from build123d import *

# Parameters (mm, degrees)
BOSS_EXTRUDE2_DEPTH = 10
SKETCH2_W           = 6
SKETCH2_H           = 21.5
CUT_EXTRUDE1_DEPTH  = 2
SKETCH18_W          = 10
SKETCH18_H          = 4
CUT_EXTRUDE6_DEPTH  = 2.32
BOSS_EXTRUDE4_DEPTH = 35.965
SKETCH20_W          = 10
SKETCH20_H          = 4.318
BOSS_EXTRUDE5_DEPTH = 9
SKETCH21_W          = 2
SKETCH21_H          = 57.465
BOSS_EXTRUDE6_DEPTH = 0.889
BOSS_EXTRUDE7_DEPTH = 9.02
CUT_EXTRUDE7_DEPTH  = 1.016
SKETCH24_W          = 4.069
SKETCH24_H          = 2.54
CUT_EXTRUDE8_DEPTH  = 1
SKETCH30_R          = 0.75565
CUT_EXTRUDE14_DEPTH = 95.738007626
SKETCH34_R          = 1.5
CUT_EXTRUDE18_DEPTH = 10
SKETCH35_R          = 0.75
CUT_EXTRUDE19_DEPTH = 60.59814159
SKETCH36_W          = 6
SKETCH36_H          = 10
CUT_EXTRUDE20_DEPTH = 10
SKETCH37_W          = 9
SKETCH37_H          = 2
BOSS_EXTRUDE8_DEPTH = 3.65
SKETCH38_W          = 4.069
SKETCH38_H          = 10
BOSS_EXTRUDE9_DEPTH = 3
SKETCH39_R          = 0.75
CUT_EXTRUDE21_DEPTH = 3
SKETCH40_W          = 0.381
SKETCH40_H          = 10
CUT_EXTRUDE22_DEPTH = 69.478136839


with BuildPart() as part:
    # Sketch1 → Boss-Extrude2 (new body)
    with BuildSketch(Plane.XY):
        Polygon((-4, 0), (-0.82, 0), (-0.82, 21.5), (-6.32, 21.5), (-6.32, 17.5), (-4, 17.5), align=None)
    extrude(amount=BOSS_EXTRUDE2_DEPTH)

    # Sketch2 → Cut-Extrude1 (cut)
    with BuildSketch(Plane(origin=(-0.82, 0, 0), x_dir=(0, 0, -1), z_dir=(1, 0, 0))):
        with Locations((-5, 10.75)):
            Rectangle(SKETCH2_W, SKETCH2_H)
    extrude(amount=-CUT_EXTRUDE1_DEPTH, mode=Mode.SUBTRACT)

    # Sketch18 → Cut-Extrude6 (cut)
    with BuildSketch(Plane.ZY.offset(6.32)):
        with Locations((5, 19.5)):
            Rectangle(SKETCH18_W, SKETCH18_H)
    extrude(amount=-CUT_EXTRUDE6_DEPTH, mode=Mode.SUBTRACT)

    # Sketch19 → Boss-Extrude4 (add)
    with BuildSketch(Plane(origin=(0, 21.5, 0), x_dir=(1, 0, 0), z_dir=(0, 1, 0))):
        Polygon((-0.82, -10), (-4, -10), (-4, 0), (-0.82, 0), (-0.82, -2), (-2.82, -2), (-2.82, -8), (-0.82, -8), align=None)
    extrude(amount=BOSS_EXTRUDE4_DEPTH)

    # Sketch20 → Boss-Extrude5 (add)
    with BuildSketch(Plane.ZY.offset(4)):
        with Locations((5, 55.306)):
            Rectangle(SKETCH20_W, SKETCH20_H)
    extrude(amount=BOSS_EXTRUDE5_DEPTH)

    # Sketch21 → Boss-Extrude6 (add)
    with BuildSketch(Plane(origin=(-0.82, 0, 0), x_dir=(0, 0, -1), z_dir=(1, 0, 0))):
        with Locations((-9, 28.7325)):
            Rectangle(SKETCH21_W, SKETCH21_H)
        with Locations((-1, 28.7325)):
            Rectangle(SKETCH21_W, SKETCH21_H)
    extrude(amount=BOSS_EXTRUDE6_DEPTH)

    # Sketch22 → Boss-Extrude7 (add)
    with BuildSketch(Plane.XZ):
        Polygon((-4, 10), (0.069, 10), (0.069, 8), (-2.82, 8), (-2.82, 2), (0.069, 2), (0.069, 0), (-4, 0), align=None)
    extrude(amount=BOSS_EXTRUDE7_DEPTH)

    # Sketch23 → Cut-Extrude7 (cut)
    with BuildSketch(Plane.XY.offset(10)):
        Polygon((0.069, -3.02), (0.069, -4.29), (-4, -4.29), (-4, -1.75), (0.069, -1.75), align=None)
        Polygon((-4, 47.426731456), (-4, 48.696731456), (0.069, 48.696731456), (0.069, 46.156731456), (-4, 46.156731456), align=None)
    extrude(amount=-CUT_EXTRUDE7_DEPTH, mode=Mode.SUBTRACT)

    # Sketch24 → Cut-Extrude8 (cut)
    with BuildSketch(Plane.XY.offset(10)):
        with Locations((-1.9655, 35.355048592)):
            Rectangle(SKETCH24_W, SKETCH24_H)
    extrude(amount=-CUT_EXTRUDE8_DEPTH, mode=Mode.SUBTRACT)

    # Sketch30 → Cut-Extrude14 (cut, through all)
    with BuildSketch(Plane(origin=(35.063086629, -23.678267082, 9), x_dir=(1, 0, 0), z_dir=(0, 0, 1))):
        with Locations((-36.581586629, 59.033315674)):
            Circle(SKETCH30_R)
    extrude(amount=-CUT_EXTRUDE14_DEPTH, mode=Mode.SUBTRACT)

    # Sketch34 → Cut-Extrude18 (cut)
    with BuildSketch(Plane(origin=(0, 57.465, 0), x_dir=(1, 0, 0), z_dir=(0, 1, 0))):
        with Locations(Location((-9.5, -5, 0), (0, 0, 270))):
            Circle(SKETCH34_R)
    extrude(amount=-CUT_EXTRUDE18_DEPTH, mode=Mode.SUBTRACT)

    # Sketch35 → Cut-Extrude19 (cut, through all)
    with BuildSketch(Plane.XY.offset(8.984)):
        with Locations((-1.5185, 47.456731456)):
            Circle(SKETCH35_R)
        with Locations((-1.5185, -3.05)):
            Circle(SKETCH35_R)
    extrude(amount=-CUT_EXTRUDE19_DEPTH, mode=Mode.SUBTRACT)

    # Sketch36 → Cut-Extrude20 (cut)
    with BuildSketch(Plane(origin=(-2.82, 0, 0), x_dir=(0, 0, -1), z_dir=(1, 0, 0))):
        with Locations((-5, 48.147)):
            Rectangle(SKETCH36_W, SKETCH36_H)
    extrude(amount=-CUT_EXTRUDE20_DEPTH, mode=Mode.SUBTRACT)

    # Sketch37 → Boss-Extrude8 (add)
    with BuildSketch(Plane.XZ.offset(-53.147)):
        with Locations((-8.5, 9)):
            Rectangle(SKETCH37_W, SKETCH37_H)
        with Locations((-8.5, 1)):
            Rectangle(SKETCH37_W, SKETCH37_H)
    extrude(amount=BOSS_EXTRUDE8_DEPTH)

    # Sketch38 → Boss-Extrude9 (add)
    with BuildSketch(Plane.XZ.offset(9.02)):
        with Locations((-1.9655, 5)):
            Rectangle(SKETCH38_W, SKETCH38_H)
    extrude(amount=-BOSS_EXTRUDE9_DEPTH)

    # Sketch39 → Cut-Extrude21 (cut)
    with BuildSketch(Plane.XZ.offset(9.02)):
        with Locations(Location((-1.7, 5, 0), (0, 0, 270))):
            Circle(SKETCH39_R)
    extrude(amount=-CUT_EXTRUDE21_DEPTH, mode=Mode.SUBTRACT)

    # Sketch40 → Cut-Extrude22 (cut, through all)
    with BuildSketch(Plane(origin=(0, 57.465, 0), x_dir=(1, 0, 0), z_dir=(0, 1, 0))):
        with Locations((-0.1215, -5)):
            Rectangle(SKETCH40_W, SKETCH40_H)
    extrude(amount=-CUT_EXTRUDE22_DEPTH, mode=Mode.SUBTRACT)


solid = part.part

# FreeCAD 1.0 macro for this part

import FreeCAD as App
import Part
import Sketcher
from FreeCAD import Vector
Q = App.Units.Quantity


def add_polygon(sketch, points):
    """Adds a closed chain of lines whose ends are joined by coincident constraints."""
    first, n = sketch.GeometryCount, len(points)
    for a, b in zip(points, points[1:] + points[:1]):
        sketch.addGeometry(Part.LineSegment(App.Vector(*a, 0), App.Vector(*b, 0)), False)
    for i in range(n):
        sketch.addConstraint(Sketcher.Constraint("Coincident", first + i, 2, first + (i + 1) % n, 1))

doc = App.newDocument("Part")
body = doc.addObject("PartDesign::Body", "Body")

sketch1 = body.newObject("Sketcher::SketchObject", "Sketch")
sketch1.AttachmentSupport = (doc.getObject("XY_Plane"), [""])
sketch1.MapMode = "FlatFace"
add_polygon(sketch1, [(-4, 0), (-0.82, 0), (-0.82, 21.5), (-6.32, 21.5), (-6.32, 17.5), (-4, 17.5)])
sketch1.addConstraint(Sketcher.Constraint("Horizontal", 0))
sketch1.addConstraint(Sketcher.Constraint("Vertical", 1))
sketch1.addConstraint(Sketcher.Constraint("Horizontal", 2))
sketch1.addConstraint(Sketcher.Constraint("Vertical", 3))
sketch1.addConstraint(Sketcher.Constraint("Horizontal", 4))
sketch1.addConstraint(Sketcher.Constraint("Vertical", 5))
sketch1.addConstraint(Sketcher.Constraint("PointOnObject", 0, 2, -1))
sketch1.addConstraint(Sketcher.Constraint("DistanceY", 3, 2, 3, 1, Q("4 mm")))
sketch1.addConstraint(Sketcher.Constraint("DistanceX", 2, 2, 2, 1, Q("5.5 mm")))
sketch1.addConstraint(Sketcher.Constraint("DistanceY", 1, 1, 1, 2, Q("21.5 mm")))
sketch1.addConstraint(Sketcher.Constraint("DistanceX", 4, 2, -1, 1, Q("4 mm")))
sketch1.addConstraint(Sketcher.Constraint("DistanceX", 0, 1, 0, 2, Q("3.18 mm")))
pad1 = body.newObject("PartDesign::Pad", "Pad")
pad1.Profile = sketch1
pad1.Length = 10

sketch2 = body.newObject("Sketcher::SketchObject", "Sketch001")
sketch2.AttachmentSupport = (doc.getObject("YZ_Plane"), [""])
sketch2.MapMode = "FlatFace"
sketch2.AttachmentOffset = App.Placement(Vector(0, 0, -0.82), App.Rotation())
add_polygon(sketch2, [(21.5, 8), (0, 8), (0, 2), (21.5, 2)])
sketch2.addConstraint(Sketcher.Constraint("Horizontal", 0))
sketch2.addConstraint(Sketcher.Constraint("Vertical", 1))
sketch2.addConstraint(Sketcher.Constraint("Horizontal", 2))
sketch2.addConstraint(Sketcher.Constraint("Vertical", 3))
sketch2.addConstraint(Sketcher.Constraint("PointOnObject", 0, 2, -2))
sketch2.addConstraint(Sketcher.Constraint("DistanceY", 1, 2, 1, 1, Q("6 mm")))
sketch2.addConstraint(Sketcher.Constraint("DistanceX", 0, 2, 0, 1, Q("21.5 mm")))
sketch2.addConstraint(Sketcher.Constraint("DistanceY", -1, 1, 0, 2, Q("8 mm")))
pocket1 = body.newObject("PartDesign::Pocket", "Pocket")
pocket1.Profile = sketch2
pocket1.Length = 2

sketch3 = body.newObject("Sketcher::SketchObject", "Sketch002")
sketch3.AttachmentSupport = (doc.getObject("YZ_Plane"), [""])
sketch3.MapMode = "FlatFace"
sketch3.AttachmentOffset = App.Placement(Vector(0, 0, -6.32), App.Rotation())
add_polygon(sketch3, [(21.5, 0), (17.5, 0), (17.5, 10), (21.5, 10)])
sketch3.addConstraint(Sketcher.Constraint("Horizontal", 0))
sketch3.addConstraint(Sketcher.Constraint("Vertical", 1))
sketch3.addConstraint(Sketcher.Constraint("Horizontal", 2))
sketch3.addConstraint(Sketcher.Constraint("Vertical", 3))
sketch3.addConstraint(Sketcher.Constraint("PointOnObject", 0, 2, -1))
sketch3.addConstraint(Sketcher.Constraint("DistanceX", 0, 2, 0, 1, Q("4 mm")))
sketch3.addConstraint(Sketcher.Constraint("DistanceY", 1, 1, 1, 2, Q("10 mm")))
sketch3.addConstraint(Sketcher.Constraint("DistanceX", -1, 1, 0, 2, Q("17.5 mm")))
pocket2 = body.newObject("PartDesign::Pocket", "Pocket001")
pocket2.Profile = sketch3
pocket2.Length = 2.32
pocket2.Reversed = True

sketch4 = body.newObject("Sketcher::SketchObject", "Sketch003")
sketch4.AttachmentSupport = (doc.getObject("XZ_Plane"), [""])
sketch4.MapMode = "FlatFace"
sketch4.AttachmentOffset = App.Placement(Vector(0, 0, -21.5), App.Rotation())
add_polygon(sketch4, [(-4, 10), (-0.82, 10), (-0.82, 8), (-2.82, 8), (-2.82, 2), (-0.82, 2), (-0.82, 0), (-4, 0)])
sketch4.addConstraint(Sketcher.Constraint("Horizontal", 0))
sketch4.addConstraint(Sketcher.Constraint("Vertical", 1))
sketch4.addConstraint(Sketcher.Constraint("Horizontal", 2))
sketch4.addConstraint(Sketcher.Constraint("Vertical", 3))
sketch4.addConstraint(Sketcher.Constraint("Horizontal", 4))
sketch4.addConstraint(Sketcher.Constraint("Vertical", 5))
sketch4.addConstraint(Sketcher.Constraint("Horizontal", 6))
sketch4.addConstraint(Sketcher.Constraint("Vertical", 7))
sketch4.addConstraint(Sketcher.Constraint("PointOnObject", 5, 2, -1))
sketch4.addConstraint(Sketcher.Constraint("Vertical", 1, 2, 4, 2))
sketch4.addConstraint(Sketcher.Constraint("Equal", 4, 1))
sketch4.addConstraint(Sketcher.Constraint("Equal", 1, 5))
sketch4.addConstraint(Sketcher.Constraint("DistanceX", 2, 2, 2, 1, Q("2 mm")))
sketch4.addConstraint(Sketcher.Constraint("DistanceY", 3, 2, 3, 1, Q("6 mm")))
sketch4.addConstraint(Sketcher.Constraint("DistanceX", 6, 2, -1, 1, Q("4 mm")))
sketch4.addConstraint(Sketcher.Constraint("DistanceX", 0, 1, 0, 2, Q("3.18 mm")))
pad2 = body.newObject("PartDesign::Pad", "Pad001")
pad2.Profile = sketch4
pad2.Length = 35.965
pad2.Reversed = True

sketch5 = body.newObject("Sketcher::SketchObject", "Sketch004")
sketch5.AttachmentSupport = (doc.getObject("YZ_Plane"), [""])
sketch5.MapMode = "FlatFace"
sketch5.AttachmentOffset = App.Placement(Vector(0, 0, -4), App.Rotation())
add_polygon(sketch5, [(57.465, 0), (53.147, 0), (53.147, 10), (57.465, 10)])
sketch5.addConstraint(Sketcher.Constraint("Horizontal", 0))
sketch5.addConstraint(Sketcher.Constraint("Vertical", 1))
sketch5.addConstraint(Sketcher.Constraint("Horizontal", 2))
sketch5.addConstraint(Sketcher.Constraint("Vertical", 3))
sketch5.addConstraint(Sketcher.Constraint("PointOnObject", 0, 2, -1))
sketch5.addConstraint(Sketcher.Constraint("DistanceY", 1, 1, 1, 2, Q("10 mm")))
sketch5.addConstraint(Sketcher.Constraint("DistanceX", 0, 2, 0, 1, Q("4.318 mm")))
sketch5.addConstraint(Sketcher.Constraint("DistanceX", -1, 1, 0, 2, Q("53.147 mm")))
pad3 = body.newObject("PartDesign::Pad", "Pad002")
pad3.Profile = sketch5
pad3.Length = 9
pad3.Reversed = True

sketch6 = body.newObject("Sketcher::SketchObject", "Sketch005")
sketch6.AttachmentSupport = (doc.getObject("YZ_Plane"), [""])
sketch6.MapMode = "FlatFace"
sketch6.AttachmentOffset = App.Placement(Vector(0, 0, -0.82), App.Rotation())
add_polygon(sketch6, [(57.465, 10), (0, 10), (0, 8), (57.465, 8)])
add_polygon(sketch6, [(57.465, 2), (0, 2), (0, 0), (57.465, 0)])
sketch6.addConstraint(Sketcher.Constraint("Horizontal", 0))
sketch6.addConstraint(Sketcher.Constraint("Vertical", 1))
sketch6.addConstraint(Sketcher.Constraint("Horizontal", 2))
sketch6.addConstraint(Sketcher.Constraint("Vertical", 3))
sketch6.addConstraint(Sketcher.Constraint("Horizontal", 4))
sketch6.addConstraint(Sketcher.Constraint("Vertical", 5))
sketch6.addConstraint(Sketcher.Constraint("Horizontal", 6))
sketch6.addConstraint(Sketcher.Constraint("Vertical", 7))
sketch6.addConstraint(Sketcher.Constraint("Coincident", 5, 2, -1, 1))
sketch6.addConstraint(Sketcher.Constraint("PointOnObject", 0, 2, -2))
sketch6.addConstraint(Sketcher.Constraint("Vertical", 3, 2, 6, 2))
sketch6.addConstraint(Sketcher.Constraint("Equal", 3, 5))
sketch6.addConstraint(Sketcher.Constraint("DistanceY", 1, 2, 1, 1, Q("2 mm")))
sketch6.addConstraint(Sketcher.Constraint("DistanceY", -1, 1, 0, 2, Q("10 mm")))
sketch6.addConstraint(Sketcher.Constraint("DistanceX", 0, 2, 0, 1, Q("57.465 mm")))
pad4 = body.newObject("PartDesign::Pad", "Pad003")
pad4.Profile = sketch6
pad4.Length = 0.889

sketch7 = body.newObject("Sketcher::SketchObject", "Sketch006")
sketch7.AttachmentSupport = (doc.getObject("XZ_Plane"), [""])
sketch7.MapMode = "FlatFace"
add_polygon(sketch7, [(0.069, 10), (-4, 10), (-4, 0), (0.069, 0), (0.069, 2), (-2.82, 2), (-2.82, 8), (0.069, 8)])
sketch7.addConstraint(Sketcher.Constraint("Horizontal", 0))
sketch7.addConstraint(Sketcher.Constraint("Vertical", 1))
sketch7.addConstraint(Sketcher.Constraint("Horizontal", 2))
sketch7.addConstraint(Sketcher.Constraint("Vertical", 3))
sketch7.addConstraint(Sketcher.Constraint("Horizontal", 4))
sketch7.addConstraint(Sketcher.Constraint("Vertical", 5))
sketch7.addConstraint(Sketcher.Constraint("Horizontal", 6))
sketch7.addConstraint(Sketcher.Constraint("Vertical", 7))
sketch7.addConstraint(Sketcher.Constraint("PointOnObject", 1, 2, -1))
sketch7.addConstraint(Sketcher.Constraint("Vertical", 3, 2, 6, 2))
sketch7.addConstraint(Sketcher.Constraint("Equal", 3, 7))
sketch7.addConstraint(Sketcher.Constraint("DistanceY", 1, 2, 1, 1, Q("10 mm")))
sketch7.addConstraint(Sketcher.Constraint("DistanceY", 3, 1, 3, 2, Q("2 mm")))
sketch7.addConstraint(Sketcher.Constraint("DistanceX", 0, 2, -1, 1, Q("4 mm")))
sketch7.addConstraint(Sketcher.Constraint("DistanceX", 0, 2, 0, 1, Q("4.069 mm")))
sketch7.addConstraint(Sketcher.Constraint("DistanceX", 4, 2, 4, 1, Q("2.889 mm")))
pad5 = body.newObject("PartDesign::Pad", "Pad004")
pad5.Profile = sketch7
pad5.Length = 9.02

sketch8 = body.newObject("Sketcher::SketchObject", "Sketch007")
sketch8.AttachmentSupport = (doc.getObject("XY_Plane"), [""])
sketch8.MapMode = "FlatFace"
sketch8.AttachmentOffset = App.Placement(Vector(0, 0, 10), App.Rotation())
add_polygon(sketch8, [(0.069, -4.29), (0.069, -1.75), (-4, -1.75), (-4, -4.29)])
add_polygon(sketch8, [(-4, 48.696731), (-4, 46.156731), (0.069, 46.156731), (0.069, 48.696731)])
sketch8.addConstraint(Sketcher.Constraint("Vertical", 0))
sketch8.addConstraint(Sketcher.Constraint("Horizontal", 1))
sketch8.addConstraint(Sketcher.Constraint("Vertical", 2))
sketch8.addConstraint(Sketcher.Constraint("Horizontal", 3))
sketch8.addConstraint(Sketcher.Constraint("Vertical", 4))
sketch8.addConstraint(Sketcher.Constraint("Horizontal", 5))
sketch8.addConstraint(Sketcher.Constraint("Vertical", 6))
sketch8.addConstraint(Sketcher.Constraint("Horizontal", 7))
sketch8.addConstraint(Sketcher.Constraint("Vertical", 2, 2, 4, 2))
sketch8.addConstraint(Sketcher.Constraint("Vertical", 3, 2, 5, 2))
sketch8.addConstraint(Sketcher.Constraint("Equal", 2, 4))
sketch8.addConstraint(Sketcher.Constraint("DistanceX", 1, 2, -1, 1, Q("4 mm")))
sketch8.addConstraint(Sketcher.Constraint("DistanceY", 0, 1, 0, 2, Q("2.54 mm")))
sketch8.addConstraint(Sketcher.Constraint("DistanceX", 1, 2, 1, 1, Q("4.069 mm")))
sketch8.addConstraint(Sketcher.Constraint("DistanceY", 0, 2, -1, 1, Q("1.75 mm")))
sketch8.addConstraint(Sketcher.Constraint("DistanceY", -1, 1, 4, 2, Q("46.156731 mm")))
pocket3 = body.newObject("PartDesign::Pocket", "Pocket002")
pocket3.Profile = sketch8
pocket3.Length = 1.016

sketch9 = body.newObject("Sketcher::SketchObject", "Sketch008")
sketch9.AttachmentSupport = (doc.getObject("XY_Plane"), [""])
sketch9.MapMode = "FlatFace"
sketch9.AttachmentOffset = App.Placement(Vector(0, 0, 10), App.Rotation())
add_polygon(sketch9, [(-4, 36.625049), (-4, 34.085049), (0.069, 34.085049), (0.069, 36.625049)])
sketch9.addConstraint(Sketcher.Constraint("Vertical", 0))
sketch9.addConstraint(Sketcher.Constraint("Horizontal", 1))
sketch9.addConstraint(Sketcher.Constraint("Vertical", 2))
sketch9.addConstraint(Sketcher.Constraint("Horizontal", 3))
sketch9.addConstraint(Sketcher.Constraint("DistanceX", 0, 2, -1, 1, Q("4 mm")))
sketch9.addConstraint(Sketcher.Constraint("DistanceY", 0, 2, 0, 1, Q("2.54 mm")))
sketch9.addConstraint(Sketcher.Constraint("DistanceX", 1, 1, 1, 2, Q("4.069 mm")))
sketch9.addConstraint(Sketcher.Constraint("DistanceY", -1, 1, 0, 2, Q("34.085049 mm")))
pocket4 = body.newObject("PartDesign::Pocket", "Pocket003")
pocket4.Profile = sketch9
pocket4.Length = 1

sketch10 = body.newObject("Sketcher::SketchObject", "Sketch009")
sketch10.AttachmentSupport = (doc.getObject("XY_Plane"), [""])
sketch10.MapMode = "FlatFace"
sketch10.AttachmentOffset = App.Placement(Vector(0, 0, 9), App.Rotation())
sketch10.addGeometry(Part.Circle(Vector(-1.5185, 35.355049, 0), Vector(0, 0, 1), 0.75565), False)
sketch10.addConstraint(Sketcher.Constraint("Diameter", 0, Q("1.5113 mm")))
sketch10.addConstraint(Sketcher.Constraint("DistanceX", 0, 3, -1, 1, Q("1.5185 mm")))
sketch10.addConstraint(Sketcher.Constraint("DistanceY", -1, 1, 0, 3, Q("35.355049 mm")))
pocket5 = body.newObject("PartDesign::Pocket", "Pocket004")
pocket5.Profile = sketch10
pocket5.Type = "ThroughAll"

sketch11 = body.newObject("Sketcher::SketchObject", "Sketch010")
sketch11.AttachmentSupport = (doc.getObject("XZ_Plane"), [""])
sketch11.MapMode = "FlatFace"
sketch11.AttachmentOffset = App.Placement(Vector(0, 0, -57.465), App.Rotation())
sketch11.addGeometry(Part.Circle(Vector(-9.5, 5, 0), Vector(0, 0, 1), 1.5), False)
sketch11.addConstraint(Sketcher.Constraint("Diameter", 0, Q("3 mm")))
sketch11.addConstraint(Sketcher.Constraint("DistanceY", -1, 1, 0, 3, Q("5 mm")))
sketch11.addConstraint(Sketcher.Constraint("DistanceX", 0, 3, -1, 1, Q("9.5 mm")))
pocket6 = body.newObject("PartDesign::Pocket", "Pocket005")
pocket6.Profile = sketch11
pocket6.Length = 10
pocket6.Reversed = True

sketch12 = body.newObject("Sketcher::SketchObject", "Sketch011")
sketch12.AttachmentSupport = (doc.getObject("XY_Plane"), [""])
sketch12.MapMode = "FlatFace"
sketch12.AttachmentOffset = App.Placement(Vector(0, 0, 8.984), App.Rotation())
sketch12.addGeometry(Part.Circle(Vector(-1.5185, 47.456731, 0), Vector(0, 0, 1), 0.75), False)
sketch12.addGeometry(Part.Circle(Vector(-1.5185, -3.05, 0), Vector(0, 0, 1), 0.75), False)
sketch12.addConstraint(Sketcher.Constraint("Equal", 0, 1))
sketch12.addConstraint(Sketcher.Constraint("Vertical", 0, 3, 1, 3))
sketch12.addConstraint(Sketcher.Constraint("Diameter", 0, Q("1.5 mm")))
sketch12.addConstraint(Sketcher.Constraint("DistanceY", 1, 3, -1, 1, Q("3.05 mm")))
sketch12.addConstraint(Sketcher.Constraint("DistanceX", 0, 3, -1, 1, Q("1.5185 mm")))
sketch12.addConstraint(Sketcher.Constraint("DistanceY", -1, 1, 0, 3, Q("47.456731 mm")))
pocket7 = body.newObject("PartDesign::Pocket", "Pocket006")
pocket7.Profile = sketch12
pocket7.Type = "ThroughAll"

sketch13 = body.newObject("Sketcher::SketchObject", "Sketch012")
sketch13.AttachmentSupport = (doc.getObject("YZ_Plane"), [""])
sketch13.MapMode = "FlatFace"
sketch13.AttachmentOffset = App.Placement(Vector(0, 0, -2.82), App.Rotation())
add_polygon(sketch13, [(53.147, 8), (43.147, 8), (43.147, 2), (53.147, 2)])
sketch13.addConstraint(Sketcher.Constraint("Horizontal", 0))
sketch13.addConstraint(Sketcher.Constraint("Vertical", 1))
sketch13.addConstraint(Sketcher.Constraint("Horizontal", 2))
sketch13.addConstraint(Sketcher.Constraint("Vertical", 3))
sketch13.addConstraint(Sketcher.Constraint("DistanceX", 0, 2, 0, 1, Q("10 mm")))
sketch13.addConstraint(Sketcher.Constraint("DistanceY", 1, 2, 1, 1, Q("6 mm")))
sketch13.addConstraint(Sketcher.Constraint("DistanceY", -1, 1, 0, 2, Q("8 mm")))
sketch13.addConstraint(Sketcher.Constraint("DistanceX", -1, 1, 0, 2, Q("43.147 mm")))
pocket8 = body.newObject("PartDesign::Pocket", "Pocket007")
pocket8.Profile = sketch13
pocket8.Length = 10

sketch14 = body.newObject("Sketcher::SketchObject", "Sketch013")
sketch14.AttachmentSupport = (doc.getObject("XZ_Plane"), [""])
sketch14.MapMode = "FlatFace"
sketch14.AttachmentOffset = App.Placement(Vector(0, 0, -53.147), App.Rotation())
add_polygon(sketch14, [(-13, 10), (-13, 8), (-4, 8), (-4, 10)])
add_polygon(sketch14, [(-13, 2), (-13, 0), (-4, 0), (-4, 2)])
sketch14.addConstraint(Sketcher.Constraint("Vertical", 0))
sketch14.addConstraint(Sketcher.Constraint("Horizontal", 1))
sketch14.addConstraint(Sketcher.Constraint("Vertical", 2))
sketch14.addConstraint(Sketcher.Constraint("Horizontal", 3))
sketch14.addConstraint(Sketcher.Constraint("Vertical", 4))
sketch14.addConstraint(Sketcher.Constraint("Horizontal", 5))
sketch14.addConstraint(Sketcher.Constraint("Vertical", 6))
sketch14.addConstraint(Sketcher.Constraint("Horizontal", 7))
sketch14.addConstraint(Sketcher.Constraint("PointOnObject", 4, 2, -1))
sketch14.addConstraint(Sketcher.Constraint("Vertical", 3, 2, 4, 2))
sketch14.addConstraint(Sketcher.Constraint("Vertical", 2, 2, 5, 2))
sketch14.addConstraint(Sketcher.Constraint("Equal", 2, 4))
sketch14.addConstraint(Sketcher.Constraint("DistanceX", 1, 1, 1, 2, Q("9 mm")))
sketch14.addConstraint(Sketcher.Constraint("DistanceY", 0, 2, 0, 1, Q("2 mm")))
sketch14.addConstraint(Sketcher.Constraint("DistanceX", 0, 2, -1, 1, Q("13 mm")))
sketch14.addConstraint(Sketcher.Constraint("DistanceY", -1, 1, 0, 2, Q("8 mm")))
pad6 = body.newObject("PartDesign::Pad", "Pad005")
pad6.Profile = sketch14
pad6.Length = 3.65

sketch15 = body.newObject("Sketcher::SketchObject", "Sketch014")
sketch15.AttachmentSupport = (doc.getObject("XZ_Plane"), [""])
sketch15.MapMode = "FlatFace"
sketch15.AttachmentOffset = App.Placement(Vector(0, 0, 9.02), App.Rotation())
add_polygon(sketch15, [(-4, 10), (-4, 0), (0.069, 0), (0.069, 10)])
sketch15.addConstraint(Sketcher.Constraint("Vertical", 0))
sketch15.addConstraint(Sketcher.Constraint("Horizontal", 1))
sketch15.addConstraint(Sketcher.Constraint("Vertical", 2))
sketch15.addConstraint(Sketcher.Constraint("Horizontal", 3))
sketch15.addConstraint(Sketcher.Constraint("PointOnObject", 0, 2, -1))
sketch15.addConstraint(Sketcher.Constraint("DistanceY", 0, 2, 0, 1, Q("10 mm")))
sketch15.addConstraint(Sketcher.Constraint("DistanceX", 0, 2, -1, 1, Q("4 mm")))
sketch15.addConstraint(Sketcher.Constraint("DistanceX", 1, 1, 1, 2, Q("4.069 mm")))
pad7 = body.newObject("PartDesign::Pad", "Pad006")
pad7.Profile = sketch15
pad7.Length = 3
pad7.Reversed = True

sketch16 = body.newObject("Sketcher::SketchObject", "Sketch015")
sketch16.AttachmentSupport = (doc.getObject("XZ_Plane"), [""])
sketch16.MapMode = "FlatFace"
sketch16.AttachmentOffset = App.Placement(Vector(0, 0, 9.02), App.Rotation())
sketch16.addGeometry(Part.Circle(Vector(-1.7, 5, 0), Vector(0, 0, 1), 0.75), False)
sketch16.addConstraint(Sketcher.Constraint("Diameter", 0, Q("1.5 mm")))
sketch16.addConstraint(Sketcher.Constraint("DistanceY", -1, 1, 0, 3, Q("5 mm")))
sketch16.addConstraint(Sketcher.Constraint("DistanceX", 0, 3, -1, 1, Q("1.7 mm")))
pocket9 = body.newObject("PartDesign::Pocket", "Pocket008")
pocket9.Profile = sketch16
pocket9.Length = 3

sketch17 = body.newObject("Sketcher::SketchObject", "Sketch016")
sketch17.AttachmentSupport = (doc.getObject("XZ_Plane"), [""])
sketch17.MapMode = "FlatFace"
sketch17.AttachmentOffset = App.Placement(Vector(0, 0, -57.465), App.Rotation())
add_polygon(sketch17, [(-0.312, 0), (-0.312, 10), (0.069, 10), (0.069, 0)])
sketch17.addConstraint(Sketcher.Constraint("Vertical", 0))
sketch17.addConstraint(Sketcher.Constraint("Horizontal", 1))
sketch17.addConstraint(Sketcher.Constraint("Vertical", 2))
sketch17.addConstraint(Sketcher.Constraint("Horizontal", 3))
sketch17.addConstraint(Sketcher.Constraint("PointOnObject", 2, 2, -1))
sketch17.addConstraint(Sketcher.Constraint("DistanceY", 0, 1, 0, 2, Q("10 mm")))
sketch17.addConstraint(Sketcher.Constraint("DistanceX", 1, 1, 1, 2, Q("0.381 mm")))
sketch17.addConstraint(Sketcher.Constraint("DistanceX", 0, 2, -1, 1, Q("0.312 mm")))
pocket10 = body.newObject("PartDesign::Pocket", "Pocket009")
pocket10.Profile = sketch17
pocket10.Type = "ThroughAll"
pocket10.Reversed = True

doc.recompute()
